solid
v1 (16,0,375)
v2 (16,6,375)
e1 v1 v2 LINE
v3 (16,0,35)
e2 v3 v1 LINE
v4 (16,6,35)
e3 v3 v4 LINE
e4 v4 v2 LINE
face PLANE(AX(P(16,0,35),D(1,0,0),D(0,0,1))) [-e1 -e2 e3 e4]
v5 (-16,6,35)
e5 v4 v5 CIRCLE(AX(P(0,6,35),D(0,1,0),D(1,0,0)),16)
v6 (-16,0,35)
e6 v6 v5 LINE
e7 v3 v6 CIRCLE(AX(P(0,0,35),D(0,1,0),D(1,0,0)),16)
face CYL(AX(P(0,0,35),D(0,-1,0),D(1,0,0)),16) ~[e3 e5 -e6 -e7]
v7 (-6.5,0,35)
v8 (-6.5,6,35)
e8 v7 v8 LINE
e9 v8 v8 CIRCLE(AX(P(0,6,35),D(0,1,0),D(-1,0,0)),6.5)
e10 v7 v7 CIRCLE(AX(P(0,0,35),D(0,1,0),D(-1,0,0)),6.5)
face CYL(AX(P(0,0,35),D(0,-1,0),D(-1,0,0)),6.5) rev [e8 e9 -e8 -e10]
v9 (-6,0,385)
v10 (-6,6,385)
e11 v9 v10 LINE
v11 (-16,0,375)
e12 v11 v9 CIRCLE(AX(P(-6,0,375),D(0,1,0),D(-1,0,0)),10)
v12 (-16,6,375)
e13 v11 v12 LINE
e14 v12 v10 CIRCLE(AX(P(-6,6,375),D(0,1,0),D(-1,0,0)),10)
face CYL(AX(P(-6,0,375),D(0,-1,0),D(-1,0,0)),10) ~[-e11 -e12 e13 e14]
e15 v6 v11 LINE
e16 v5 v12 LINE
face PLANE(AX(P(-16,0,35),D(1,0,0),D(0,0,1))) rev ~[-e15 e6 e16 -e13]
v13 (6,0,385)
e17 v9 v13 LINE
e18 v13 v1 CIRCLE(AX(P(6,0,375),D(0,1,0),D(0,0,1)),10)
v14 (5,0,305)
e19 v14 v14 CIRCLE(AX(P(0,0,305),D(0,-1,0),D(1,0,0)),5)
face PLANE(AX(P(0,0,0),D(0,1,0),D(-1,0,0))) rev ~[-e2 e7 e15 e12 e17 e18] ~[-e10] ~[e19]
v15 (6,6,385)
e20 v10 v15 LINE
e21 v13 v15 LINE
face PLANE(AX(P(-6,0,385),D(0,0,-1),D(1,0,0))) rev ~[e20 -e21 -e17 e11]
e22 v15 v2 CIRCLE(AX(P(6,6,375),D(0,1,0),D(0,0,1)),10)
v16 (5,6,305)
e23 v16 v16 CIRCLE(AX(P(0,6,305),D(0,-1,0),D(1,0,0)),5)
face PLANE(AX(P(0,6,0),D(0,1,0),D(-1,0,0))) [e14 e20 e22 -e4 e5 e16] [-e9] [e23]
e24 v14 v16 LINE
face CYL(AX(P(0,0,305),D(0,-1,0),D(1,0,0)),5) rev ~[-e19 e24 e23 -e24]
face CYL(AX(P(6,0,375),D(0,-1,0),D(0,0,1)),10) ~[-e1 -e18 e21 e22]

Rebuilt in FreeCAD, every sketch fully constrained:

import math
import FreeCAD as App
import Part
import Sketcher

V = App.Vector

doc = App.newDocument("Part")
body = doc.addObject("PartDesign::Body", "Body")

# Sketch on XZ plane
sketch1 = body.newObject("Sketcher::SketchObject", "Sketch")
sketch1.AttachmentSupport = (doc.getObject("XZ_Plane"), [""])
sketch1.MapMode = "FlatFace"
sketch1.addGeometry(Part.LineSegment(V(16, 375, 0), V(16, 35, 0)), False)
sketch1.addGeometry(Part.ArcOfCircle(Part.Circle(V(0, 35, 0), V(0, 0, 1), 16), math.radians(180), math.radians(360)), False)
sketch1.addGeometry(Part.LineSegment(V(-16, 35, 0), V(-16, 375, 0)), False)
sketch1.addGeometry(Part.ArcOfCircle(Part.Circle(V(-6, 375, 0), V(0, 0, 1), 10), math.radians(90), math.radians(180)), False)
sketch1.addGeometry(Part.LineSegment(V(-6, 385, 0), V(6, 385, 0)), False)
sketch1.addGeometry(Part.ArcOfCircle(Part.Circle(V(6, 375, 0), V(0, 0, 1), 10), math.radians(0), math.radians(90)), False)
sketch1.addGeometry(Part.Circle(V(0, 35, 0), V(0, 0, 1), 6.5), False)
sketch1.addConstraint(Sketcher.Constraint("Tangent", 0, 2, 1, 2))
sketch1.addConstraint(Sketcher.Constraint("Tangent", 1, 1, 2, 1))
sketch1.addConstraint(Sketcher.Constraint("Tangent", 2, 2, 3, 2))
sketch1.addConstraint(Sketcher.Constraint("Tangent", 3, 1, 4, 1))
sketch1.addConstraint(Sketcher.Constraint("Tangent", 4, 2, 5, 2))
sketch1.addConstraint(Sketcher.Constraint("Tangent", 5, 1, 0, 1))
sketch1.addConstraint(Sketcher.Constraint("Vertical", 0))
sketch1.addConstraint(Sketcher.Constraint("Vertical", 2))
sketch1.addConstraint(Sketcher.Constraint("Horizontal", 4))
sketch1.addConstraint(Sketcher.Constraint("Coincident", 6, 3, 1, 3))
sketch1.addConstraint(Sketcher.Constraint("Equal", 3, 5))
sketch1.addConstraint(Sketcher.Constraint("PointOnObject", 1, 3, -2))
sketch1.addConstraint(Sketcher.Constraint("Diameter", 6, 13.0))
sketch1.addConstraint(Sketcher.Constraint("Radius", 1, 16.0))
sketch1.addConstraint(Sketcher.Constraint("Radius", 3, 10.0))
sketch1.addConstraint(Sketcher.Constraint("DistanceY", -1, 1, 1, 3, 35.0))
sketch1.addConstraint(Sketcher.Constraint("DistanceY", 1, 3, 3, 1, 350.0))
pad1 = body.newObject("PartDesign::Pad", "Pad")
pad1.Profile = sketch1
pad1.Length = 6
pad1.Reversed = True

# Sketch on XZ plane
sketch2 = body.newObject("Sketcher::SketchObject", "Sketch001")
sketch2.AttachmentSupport = (doc.getObject("XZ_Plane"), [""])
sketch2.MapMode = "FlatFace"
sketch2.addGeometry(Part.Circle(V(0, 305, 0), V(0, 0, 1), 5), False)
sketch2.addConstraint(Sketcher.Constraint("PointOnObject", 0, 3, -2))
sketch2.addConstraint(Sketcher.Constraint("Diameter", 0, 10.0))
sketch2.addConstraint(Sketcher.Constraint("DistanceY", -1, 1, 0, 3, 305.0))
pocket1 = body.newObject("PartDesign::Pocket", "Pocket")
pocket1.Profile = sketch2
pocket1.Length = 10

doc.recompute()
